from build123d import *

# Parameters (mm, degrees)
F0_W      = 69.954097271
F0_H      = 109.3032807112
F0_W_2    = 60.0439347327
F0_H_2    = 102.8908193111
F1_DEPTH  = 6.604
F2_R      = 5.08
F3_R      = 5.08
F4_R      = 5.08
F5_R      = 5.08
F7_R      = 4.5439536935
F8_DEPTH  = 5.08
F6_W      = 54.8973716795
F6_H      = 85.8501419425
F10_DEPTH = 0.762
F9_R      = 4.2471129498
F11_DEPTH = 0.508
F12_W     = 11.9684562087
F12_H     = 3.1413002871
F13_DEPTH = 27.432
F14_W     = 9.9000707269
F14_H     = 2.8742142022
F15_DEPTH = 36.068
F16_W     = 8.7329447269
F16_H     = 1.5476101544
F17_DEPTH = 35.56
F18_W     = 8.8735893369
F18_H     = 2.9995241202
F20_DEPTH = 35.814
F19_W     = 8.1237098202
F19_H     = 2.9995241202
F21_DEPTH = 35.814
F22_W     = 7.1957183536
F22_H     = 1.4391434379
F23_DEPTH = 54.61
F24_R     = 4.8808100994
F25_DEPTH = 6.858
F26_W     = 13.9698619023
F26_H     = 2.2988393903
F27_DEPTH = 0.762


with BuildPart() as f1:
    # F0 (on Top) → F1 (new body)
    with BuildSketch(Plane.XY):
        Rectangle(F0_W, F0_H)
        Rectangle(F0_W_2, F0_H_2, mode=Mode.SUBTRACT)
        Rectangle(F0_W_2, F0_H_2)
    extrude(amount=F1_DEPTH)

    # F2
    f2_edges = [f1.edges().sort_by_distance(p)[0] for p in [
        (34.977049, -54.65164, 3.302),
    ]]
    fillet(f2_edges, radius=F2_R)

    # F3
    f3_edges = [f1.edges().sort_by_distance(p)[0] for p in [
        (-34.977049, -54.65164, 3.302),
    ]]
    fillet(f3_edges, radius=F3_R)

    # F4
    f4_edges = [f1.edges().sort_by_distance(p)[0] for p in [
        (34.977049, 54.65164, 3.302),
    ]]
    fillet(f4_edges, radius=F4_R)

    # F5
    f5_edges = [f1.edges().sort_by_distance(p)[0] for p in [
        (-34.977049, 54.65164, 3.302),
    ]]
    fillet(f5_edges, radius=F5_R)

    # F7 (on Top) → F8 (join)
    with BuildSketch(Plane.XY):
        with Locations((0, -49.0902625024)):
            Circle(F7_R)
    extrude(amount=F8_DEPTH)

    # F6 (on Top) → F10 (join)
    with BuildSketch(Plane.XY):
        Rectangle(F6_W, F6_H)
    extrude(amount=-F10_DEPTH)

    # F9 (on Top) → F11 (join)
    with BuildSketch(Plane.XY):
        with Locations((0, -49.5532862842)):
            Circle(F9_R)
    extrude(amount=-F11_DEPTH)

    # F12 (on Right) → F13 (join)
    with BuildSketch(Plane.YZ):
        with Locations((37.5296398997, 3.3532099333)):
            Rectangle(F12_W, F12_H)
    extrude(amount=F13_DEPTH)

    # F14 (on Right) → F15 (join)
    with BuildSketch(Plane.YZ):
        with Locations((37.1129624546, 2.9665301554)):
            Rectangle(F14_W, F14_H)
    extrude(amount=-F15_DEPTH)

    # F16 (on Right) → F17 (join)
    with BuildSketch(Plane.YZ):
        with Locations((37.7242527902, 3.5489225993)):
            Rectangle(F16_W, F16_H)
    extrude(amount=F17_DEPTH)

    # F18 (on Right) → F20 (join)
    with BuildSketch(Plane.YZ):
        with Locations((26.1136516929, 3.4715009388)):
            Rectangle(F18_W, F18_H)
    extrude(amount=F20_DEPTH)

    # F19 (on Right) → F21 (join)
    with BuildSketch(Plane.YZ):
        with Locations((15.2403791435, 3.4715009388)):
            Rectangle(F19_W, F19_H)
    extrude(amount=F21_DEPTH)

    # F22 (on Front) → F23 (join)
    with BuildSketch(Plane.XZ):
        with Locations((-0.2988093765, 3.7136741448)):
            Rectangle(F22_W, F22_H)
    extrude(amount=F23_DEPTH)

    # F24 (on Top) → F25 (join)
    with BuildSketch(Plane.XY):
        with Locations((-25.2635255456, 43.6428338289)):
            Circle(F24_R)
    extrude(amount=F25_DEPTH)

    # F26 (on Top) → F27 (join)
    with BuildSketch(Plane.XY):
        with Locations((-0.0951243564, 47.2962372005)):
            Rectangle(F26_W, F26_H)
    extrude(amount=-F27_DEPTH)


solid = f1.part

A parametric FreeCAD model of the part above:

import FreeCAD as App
import Part
import Sketcher
Q = App.Units.Quantity


def edges_at(feature, points):
    """Names of the edges that pass closest to the given points."""
    edges = feature.Shape.Edges
    near = lambda p: min(range(len(edges)), key=lambda i: edges[i].distToShape(Part.Vertex(*p))[0])
    return sorted({f"Edge{near(p) + 1}" for p in points})


def add_polygon(sketch, points):
    """Adds a closed chain of lines whose ends are joined by coincident constraints."""
    first, n = sketch.GeometryCount, len(points)
    for a, b in zip(points, points[1:] + points[:1]):
        sketch.addGeometry(Part.LineSegment(App.Vector(*a, 0), App.Vector(*b, 0)), False)
    for i in range(n):
        sketch.addConstraint(Sketcher.Constraint("Coincident", first + i, 2, first + (i + 1) % n, 1))

doc = App.newDocument("Part")
params = doc.addObject("Spreadsheet::Sheet", "Params")
for row, (alias, value) in enumerate([
    ("pad1_length", "0.26 in"),
    ("fillet_radius", "0.2 in"),
    ("fillet2_radius", "0.2 in"),
    ("fillet3_radius", "0.2 in"),
    ("fillet4_radius", "0.2 in"),
    ("pad2_length", "0.2 in"),
    ("pad3_length", "0.03 in"),
    ("pad4_length", "0.02 in"),
    ("pad5_length", "1.08 in"),
    ("pad6_length", "1.42 in"),
    ("pad7_length", "1.4 in"),
    ("pad8_length", "1.41 in"),
    ("pad9_length", "1.41 in"),
    ("pad10_length", "2.15 in"),
    ("pad11_length", "0.27 in"),
    ("pad12_length", "0.03 in"),
], start=1):
    params.set(f"A{row}", alias)
    params.set(f"B{row}", "=" + value)
    params.setAlias(f"B{row}", alias)

body = doc.addObject("PartDesign::Body", "Body")

sketch1 = body.newObject("Sketcher::SketchObject", "Sketch")
sketch1.AttachmentSupport = (doc.getObject("XY_Plane"), [""])
sketch1.MapMode = "FlatFace"
add_polygon(sketch1, [(-35, 55), (-35, -55), (35, -55), (35, 55)])
sketch1.addConstraint([
    Sketcher.Constraint("Vertical", 0),
    Sketcher.Constraint("Horizontal", 1),
    Sketcher.Constraint("Vertical", 2),
    Sketcher.Constraint("Horizontal", 3),
    Sketcher.Constraint("Symmetric", 0, 2, 2, 2, -1, 1),
    Sketcher.Constraint("DistanceY", 0, 2, 0, 1, Q("109.303281 mm")),
    Sketcher.Constraint("DistanceX", 1, 1, 1, 2, Q("69.954097 mm")),
])
pad1 = body.newObject("PartDesign::Pad", "Pad")
pad1.Profile = sketch1
pad1.setExpression("Length", "Params.pad1_length")
doc.recompute()

fillet = body.newObject("PartDesign::Fillet", "Fillet")
fillet.Base = (pad1, edges_at(pad1, [(34.977, -54.652, 3.302)]))
fillet.setExpression("Radius", "Params.fillet_radius")
doc.recompute()

fillet2 = body.newObject("PartDesign::Fillet", "Fillet001")
fillet2.Base = (fillet, edges_at(fillet, [(-34.977, -54.652, 3.302)]))
fillet2.setExpression("Radius", "Params.fillet2_radius")
doc.recompute()

fillet3 = body.newObject("PartDesign::Fillet", "Fillet002")
fillet3.Base = (fillet2, edges_at(fillet2, [(34.977, 54.652, 3.302)]))
fillet3.setExpression("Radius", "Params.fillet3_radius")
doc.recompute()

fillet4 = body.newObject("PartDesign::Fillet", "Fillet003")
fillet4.Base = (fillet3, edges_at(fillet3, [(-34.977, 54.652, 3.302)]))
fillet4.setExpression("Radius", "Params.fillet4_radius")

sketch2 = body.newObject("Sketcher::SketchObject", "Sketch001")
sketch2.AttachmentSupport = (doc.getObject("XY_Plane"), [""])
sketch2.MapMode = "FlatFace"
sketch2.addGeometry(Part.Circle(App.Vector(0, -49.1, 0), App.Vector(0, 0, 1), 4.5), False)
sketch2.addConstraint([
    Sketcher.Constraint("PointOnObject", 0, 3, -2),
    Sketcher.Constraint("Diameter", 0, Q("9.087907 mm")),
    Sketcher.Constraint("DistanceY", 0, 3, -1, 1, Q("49.090263 mm")),
])
pad2 = body.newObject("PartDesign::Pad", "Pad001")
pad2.Profile = sketch2
pad2.setExpression("Length", "Params.pad2_length")

sketch3 = body.newObject("Sketcher::SketchObject", "Sketch002")
sketch3.AttachmentSupport = (doc.getObject("XY_Plane"), [""])
sketch3.MapMode = "FlatFace"
add_polygon(sketch3, [(-27, 43), (-27, -43), (27, -43), (27, 43)])
sketch3.addConstraint([
    Sketcher.Constraint("Vertical", 0),
    Sketcher.Constraint("Horizontal", 1),
    Sketcher.Constraint("Vertical", 2),
    Sketcher.Constraint("Horizontal", 3),
    Sketcher.Constraint("Symmetric", 0, 2, 2, 2, -1, 1),
    Sketcher.Constraint("DistanceX", 1, 1, 1, 2, Q("54.897372 mm")),
    Sketcher.Constraint("DistanceY", 0, 2, 0, 1, Q("85.850142 mm")),
])
pad3 = body.newObject("PartDesign::Pad", "Pad002")
pad3.Profile = sketch3
pad3.setExpression("Length", "Params.pad3_length")
pad3.Reversed = True

sketch4 = body.newObject("Sketcher::SketchObject", "Sketch003")
sketch4.AttachmentSupport = (doc.getObject("XY_Plane"), [""])
sketch4.MapMode = "FlatFace"
sketch4.addGeometry(Part.Circle(App.Vector(0, -49.6, 0), App.Vector(0, 0, 1), 4.2), False)
sketch4.addConstraint([
    Sketcher.Constraint("PointOnObject", 0, 3, -2),
    Sketcher.Constraint("Diameter", 0, Q("8.494226 mm")),
    Sketcher.Constraint("DistanceY", 0, 3, -1, 1, Q("49.553286 mm")),
])
pad4 = body.newObject("PartDesign::Pad", "Pad003")
pad4.Profile = sketch4
pad4.setExpression("Length", "Params.pad4_length")
pad4.Reversed = True

sketch5 = body.newObject("Sketcher::SketchObject", "Sketch004")
sketch5.AttachmentSupport = (doc.getObject("YZ_Plane"), [""])
sketch5.MapMode = "FlatFace"
add_polygon(sketch5, [(31.5, 4.9), (31.5, 1.8), (43.5, 1.8), (43.5, 4.9)])
sketch5.addConstraint([
    Sketcher.Constraint("Vertical", 0),
    Sketcher.Constraint("Horizontal", 1),
    Sketcher.Constraint("Vertical", 2),
    Sketcher.Constraint("Horizontal", 3),
    Sketcher.Constraint("DistanceY", 0, 2, 0, 1, Q("3.1413 mm")),
    Sketcher.Constraint("DistanceX", 1, 1, 1, 2, Q("11.968456 mm")),
    Sketcher.Constraint("DistanceX", -1, 1, 0, 2, Q("31.545412 mm")),
    Sketcher.Constraint("DistanceY", -1, 1, 0, 2, Q("1.78256 mm")),
])
pad5 = body.newObject("PartDesign::Pad", "Pad004")
pad5.Profile = sketch5
pad5.setExpression("Length", "Params.pad5_length")

sketch6 = body.newObject("Sketcher::SketchObject", "Sketch005")
sketch6.AttachmentSupport = (doc.getObject("YZ_Plane"), [""])
sketch6.MapMode = "FlatFace"
add_polygon(sketch6, [(32.2, 4.4), (32.2, 1.5), (42.1, 1.5), (42.1, 4.4)])
sketch6.addConstraint([
    Sketcher.Constraint("Vertical", 0),
    Sketcher.Constraint("Horizontal", 1),
    Sketcher.Constraint("Vertical", 2),
    Sketcher.Constraint("Horizontal", 3),
    Sketcher.Constraint("DistanceX", 1, 1, 1, 2, Q("9.900071 mm")),
    Sketcher.Constraint("DistanceY", 0, 2, 0, 1, Q("2.874214 mm")),
    Sketcher.Constraint("DistanceX", -1, 1, 0, 2, Q("32.162927 mm")),
    Sketcher.Constraint("DistanceY", -1, 1, 0, 2, Q("1.529423 mm")),
])
pad6 = body.newObject("PartDesign::Pad", "Pad005")
pad6.Profile = sketch6
pad6.setExpression("Length", "Params.pad6_length")
pad6.Reversed = True

sketch7 = body.newObject("Sketcher::SketchObject", "Sketch006")
sketch7.AttachmentSupport = (doc.getObject("YZ_Plane"), [""])
sketch7.MapMode = "FlatFace"
add_polygon(sketch7, [(33.4, 4.3), (33.4, 2.8), (42.1, 2.8), (42.1, 4.3)])
sketch7.addConstraint([
    Sketcher.Constraint("Vertical", 0),
    Sketcher.Constraint("Horizontal", 1),
    Sketcher.Constraint("Vertical", 2),
    Sketcher.Constraint("Horizontal", 3),
    Sketcher.Constraint("DistanceY", 0, 2, 0, 1, Q("1.54761 mm")),
    Sketcher.Constraint("DistanceX", 1, 1, 1, 2, Q("8.732945 mm")),
    Sketcher.Constraint("DistanceX", -1, 1, 0, 2, Q("33.35778 mm")),
    Sketcher.Constraint("DistanceY", -1, 1, 0, 2, Q("2.775118 mm")),
])
pad7 = body.newObject("PartDesign::Pad", "Pad006")
pad7.Profile = sketch7
pad7.setExpression("Length", "Params.pad7_length")

sketch8 = body.newObject("Sketcher::SketchObject", "Sketch007")
sketch8.AttachmentSupport = (doc.getObject("YZ_Plane"), [""])
sketch8.MapMode = "FlatFace"
add_polygon(sketch8, [(21.7, 5), (21.7, 2), (30.6, 2), (30.6, 5)])
sketch8.addConstraint([
    Sketcher.Constraint("Vertical", 0),
    Sketcher.Constraint("Horizontal", 1),
    Sketcher.Constraint("Vertical", 2),
    Sketcher.Constraint("Horizontal", 3),
    Sketcher.Constraint("DistanceX", 1, 1, 1, 2, Q("8.873589 mm")),
    Sketcher.Constraint("DistanceY", 0, 2, 0, 1, Q("2.999524 mm")),
    Sketcher.Constraint("DistanceY", -1, 1, 0, 2, Q("1.971739 mm")),
    Sketcher.Constraint("DistanceX", -1, 1, 0, 2, Q("21.676857 mm")),
])
pad8 = body.newObject("PartDesign::Pad", "Pad007")
pad8.Profile = sketch8
pad8.setExpression("Length", "Params.pad8_length")

sketch9 = body.newObject("Sketcher::SketchObject", "Sketch008")
sketch9.AttachmentSupport = (doc.getObject("YZ_Plane"), [""])
sketch9.MapMode = "FlatFace"
add_polygon(sketch9, [(11.2, 5), (11.2, 2), (19.3, 2), (19.3, 5)])
sketch9.addConstraint([
    Sketcher.Constraint("Vertical", 0),
    Sketcher.Constraint("Horizontal", 1),
    Sketcher.Constraint("Vertical", 2),
    Sketcher.Constraint("Horizontal", 3),
    Sketcher.Constraint("DistanceX", 1, 1, 1, 2, Q("8.12371 mm")),
    Sketcher.Constraint("DistanceY", 0, 2, 0, 1, Q("2.999524 mm")),
    Sketcher.Constraint("DistanceY", -1, 1, 0, 2, Q("1.971739 mm")),
    Sketcher.Constraint("DistanceX", -1, 1, 0, 2, Q("11.178524 mm")),
])
pad9 = body.newObject("PartDesign::Pad", "Pad008")
pad9.Profile = sketch9
pad9.setExpression("Length", "Params.pad9_length")

sketch10 = body.newObject("Sketcher::SketchObject", "Sketch009")
sketch10.AttachmentSupport = (doc.getObject("XZ_Plane"), [""])
sketch10.MapMode = "FlatFace"
add_polygon(sketch10, [(-3.9, 4.4), (-3.9, 3), (3.3, 3), (3.3, 4.4)])
sketch10.addConstraint([
    Sketcher.Constraint("Vertical", 0),
    Sketcher.Constraint("Horizontal", 1),
    Sketcher.Constraint("Vertical", 2),
    Sketcher.Constraint("Horizontal", 3),
    Sketcher.Constraint("DistanceX", 1, 1, 1, 2, Q("7.195718 mm")),
    Sketcher.Constraint("DistanceY", 0, 2, 0, 1, Q("1.439143 mm")),
    Sketcher.Constraint("DistanceX", 0, 2, -1, 1, Q("3.896669 mm")),
    Sketcher.Constraint("DistanceY", -1, 1, 0, 2, Q("2.994102 mm")),
])
pad10 = body.newObject("PartDesign::Pad", "Pad009")
pad10.Profile = sketch10
pad10.setExpression("Length", "Params.pad10_length")

sketch11 = body.newObject("Sketcher::SketchObject", "Sketch010")
sketch11.AttachmentSupport = (doc.getObject("XY_Plane"), [""])
sketch11.MapMode = "FlatFace"
sketch11.addGeometry(Part.Circle(App.Vector(-25.3, 43.6, 0), App.Vector(0, 0, 1), 4.9), False)
sketch11.addConstraint([
    Sketcher.Constraint("Diameter", 0, Q("9.76162 mm")),
    Sketcher.Constraint("DistanceX", 0, 3, -1, 1, Q("25.263526 mm")),
    Sketcher.Constraint("DistanceY", -1, 1, 0, 3, Q("43.642834 mm")),
])
pad11 = body.newObject("PartDesign::Pad", "Pad010")
pad11.Profile = sketch11
pad11.setExpression("Length", "Params.pad11_length")

sketch12 = body.newObject("Sketcher::SketchObject", "Sketch011")
sketch12.AttachmentSupport = (doc.getObject("XY_Plane"), [""])
sketch12.MapMode = "FlatFace"
add_polygon(sketch12, [(-7.1, 48.4), (-7.1, 46.1), (6.9, 46.1), (6.9, 48.4)])
sketch12.addConstraint([
    Sketcher.Constraint("Vertical", 0),
    Sketcher.Constraint("Horizontal", 1),
    Sketcher.Constraint("Vertical", 2),
    Sketcher.Constraint("Horizontal", 3),
    Sketcher.Constraint("DistanceX", 1, 1, 1, 2, Q("13.969862 mm")),
    Sketcher.Constraint("DistanceY", 0, 2, 0, 1, Q("2.298839 mm")),
    Sketcher.Constraint("DistanceX", 0, 2, -1, 1, Q("7.080055 mm")),
    Sketcher.Constraint("DistanceY", -1, 1, 0, 2, Q("46.146818 mm")),
])
pad12 = body.newObject("PartDesign::Pad", "Pad011")
pad12.Profile = sketch12
pad12.setExpression("Length", "Params.pad12_length")
pad12.Reversed = True

doc.recompute()
